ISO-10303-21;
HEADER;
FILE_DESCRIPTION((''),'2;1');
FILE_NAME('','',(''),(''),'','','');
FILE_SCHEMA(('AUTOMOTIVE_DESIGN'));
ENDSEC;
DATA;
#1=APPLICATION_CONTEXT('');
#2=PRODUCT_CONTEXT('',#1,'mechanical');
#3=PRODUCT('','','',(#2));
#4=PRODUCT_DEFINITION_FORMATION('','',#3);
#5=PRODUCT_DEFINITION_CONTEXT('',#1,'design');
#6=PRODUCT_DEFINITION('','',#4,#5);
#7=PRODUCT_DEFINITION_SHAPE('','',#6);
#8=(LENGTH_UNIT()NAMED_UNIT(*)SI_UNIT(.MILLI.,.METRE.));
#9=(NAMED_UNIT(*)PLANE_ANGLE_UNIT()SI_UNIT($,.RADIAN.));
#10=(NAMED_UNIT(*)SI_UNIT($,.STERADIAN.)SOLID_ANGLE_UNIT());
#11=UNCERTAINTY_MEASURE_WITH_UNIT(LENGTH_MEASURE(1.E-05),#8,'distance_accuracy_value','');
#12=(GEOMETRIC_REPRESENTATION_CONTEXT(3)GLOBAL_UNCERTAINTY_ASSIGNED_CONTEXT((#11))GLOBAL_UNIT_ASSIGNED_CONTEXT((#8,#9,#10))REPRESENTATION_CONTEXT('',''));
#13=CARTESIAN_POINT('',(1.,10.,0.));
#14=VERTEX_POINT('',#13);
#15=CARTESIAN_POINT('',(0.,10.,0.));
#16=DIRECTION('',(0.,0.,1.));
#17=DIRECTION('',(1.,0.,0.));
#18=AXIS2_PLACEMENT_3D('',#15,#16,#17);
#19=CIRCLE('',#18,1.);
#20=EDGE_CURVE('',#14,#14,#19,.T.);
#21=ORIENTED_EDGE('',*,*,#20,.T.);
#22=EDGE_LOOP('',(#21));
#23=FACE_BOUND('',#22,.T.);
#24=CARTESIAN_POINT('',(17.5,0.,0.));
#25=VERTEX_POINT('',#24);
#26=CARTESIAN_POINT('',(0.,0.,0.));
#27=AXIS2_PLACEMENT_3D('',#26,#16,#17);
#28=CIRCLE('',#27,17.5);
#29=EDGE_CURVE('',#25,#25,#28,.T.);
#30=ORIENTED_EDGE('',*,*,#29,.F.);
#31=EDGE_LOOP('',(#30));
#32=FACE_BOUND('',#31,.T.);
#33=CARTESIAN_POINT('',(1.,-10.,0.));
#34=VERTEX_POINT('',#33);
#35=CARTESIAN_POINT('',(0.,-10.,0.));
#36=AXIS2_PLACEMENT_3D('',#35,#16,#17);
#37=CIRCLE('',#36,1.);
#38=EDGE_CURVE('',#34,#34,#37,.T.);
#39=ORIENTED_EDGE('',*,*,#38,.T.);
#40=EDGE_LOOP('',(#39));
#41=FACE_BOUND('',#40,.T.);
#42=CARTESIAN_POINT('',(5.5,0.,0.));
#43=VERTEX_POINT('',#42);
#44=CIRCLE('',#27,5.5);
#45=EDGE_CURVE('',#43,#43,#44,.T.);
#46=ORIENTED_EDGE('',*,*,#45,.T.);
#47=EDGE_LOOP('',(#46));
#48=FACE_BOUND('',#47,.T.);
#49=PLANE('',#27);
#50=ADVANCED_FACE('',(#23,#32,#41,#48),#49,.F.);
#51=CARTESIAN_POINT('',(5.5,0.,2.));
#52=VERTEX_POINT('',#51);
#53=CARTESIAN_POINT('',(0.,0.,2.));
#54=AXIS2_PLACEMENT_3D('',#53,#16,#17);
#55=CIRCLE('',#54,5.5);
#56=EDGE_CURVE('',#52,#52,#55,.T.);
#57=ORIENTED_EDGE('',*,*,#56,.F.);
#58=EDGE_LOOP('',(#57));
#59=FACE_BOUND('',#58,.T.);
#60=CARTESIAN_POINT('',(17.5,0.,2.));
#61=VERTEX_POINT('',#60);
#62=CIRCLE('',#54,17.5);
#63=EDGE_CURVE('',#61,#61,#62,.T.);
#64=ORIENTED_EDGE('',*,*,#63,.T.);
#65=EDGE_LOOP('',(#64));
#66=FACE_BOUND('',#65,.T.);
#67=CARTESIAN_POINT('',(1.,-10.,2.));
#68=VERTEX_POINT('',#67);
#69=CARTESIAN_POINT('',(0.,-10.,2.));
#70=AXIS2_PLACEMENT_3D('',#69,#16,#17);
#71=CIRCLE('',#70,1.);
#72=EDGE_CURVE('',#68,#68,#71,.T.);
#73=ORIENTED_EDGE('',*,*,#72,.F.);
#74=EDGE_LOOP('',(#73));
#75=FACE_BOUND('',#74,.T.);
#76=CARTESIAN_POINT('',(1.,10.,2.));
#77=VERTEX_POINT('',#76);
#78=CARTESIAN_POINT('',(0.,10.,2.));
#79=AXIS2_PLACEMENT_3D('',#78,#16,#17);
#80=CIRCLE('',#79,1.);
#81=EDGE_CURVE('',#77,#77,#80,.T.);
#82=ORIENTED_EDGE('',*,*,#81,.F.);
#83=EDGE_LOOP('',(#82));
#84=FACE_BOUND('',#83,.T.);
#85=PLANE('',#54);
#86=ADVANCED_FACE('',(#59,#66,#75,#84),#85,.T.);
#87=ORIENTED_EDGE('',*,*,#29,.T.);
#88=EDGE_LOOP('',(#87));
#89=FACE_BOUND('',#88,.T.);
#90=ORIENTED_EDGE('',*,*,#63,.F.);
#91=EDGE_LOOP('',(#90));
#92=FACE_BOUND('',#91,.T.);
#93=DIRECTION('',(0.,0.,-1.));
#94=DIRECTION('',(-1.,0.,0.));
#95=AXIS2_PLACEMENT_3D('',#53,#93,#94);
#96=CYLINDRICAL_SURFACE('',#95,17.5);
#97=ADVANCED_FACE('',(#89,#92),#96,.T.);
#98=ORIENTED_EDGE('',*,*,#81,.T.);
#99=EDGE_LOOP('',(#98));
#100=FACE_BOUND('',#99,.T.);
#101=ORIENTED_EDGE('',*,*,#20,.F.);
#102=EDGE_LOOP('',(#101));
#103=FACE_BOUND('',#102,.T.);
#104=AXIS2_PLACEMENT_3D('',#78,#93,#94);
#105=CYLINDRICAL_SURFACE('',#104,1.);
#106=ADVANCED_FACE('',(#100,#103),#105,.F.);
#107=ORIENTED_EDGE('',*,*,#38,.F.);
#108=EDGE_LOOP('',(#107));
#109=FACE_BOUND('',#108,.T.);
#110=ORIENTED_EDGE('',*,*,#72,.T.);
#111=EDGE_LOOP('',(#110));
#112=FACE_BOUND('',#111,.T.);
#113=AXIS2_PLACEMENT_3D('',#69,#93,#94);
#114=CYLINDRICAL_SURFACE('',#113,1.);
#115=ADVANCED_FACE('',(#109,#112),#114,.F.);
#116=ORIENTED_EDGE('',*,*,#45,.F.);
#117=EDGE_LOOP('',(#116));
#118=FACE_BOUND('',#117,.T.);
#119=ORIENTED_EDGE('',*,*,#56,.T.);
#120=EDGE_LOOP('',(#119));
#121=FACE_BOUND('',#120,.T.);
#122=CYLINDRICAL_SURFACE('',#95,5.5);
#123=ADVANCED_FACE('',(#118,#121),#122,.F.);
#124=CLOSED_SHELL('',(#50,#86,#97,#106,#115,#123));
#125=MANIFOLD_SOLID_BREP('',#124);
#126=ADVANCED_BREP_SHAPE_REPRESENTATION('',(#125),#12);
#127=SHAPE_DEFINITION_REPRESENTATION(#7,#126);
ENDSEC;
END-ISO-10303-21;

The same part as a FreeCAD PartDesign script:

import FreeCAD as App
import Part
import Sketcher

V = App.Vector
Q = App.Units.Quantity

doc = App.newDocument("Part")
body = doc.addObject("PartDesign::Body", "Body")

# Sketch on XY plane
sketch1 = body.newObject("Sketcher::SketchObject", "Sketch")
sketch1.AttachmentSupport = (doc.getObject("XY_Plane"), [""])
sketch1.MapMode = "FlatFace"
sketch1.addGeometry(Part.Circle(V(0, 0, 0), V(0, 0, 1), 17.5), False)
sketch1.addGeometry(Part.Circle(V(0, -10, 0), V(0, 0, 1), 1), False)
sketch1.addGeometry(Part.Circle(V(0, 0, 0), V(0, 0, 1), 5.5), False)
sketch1.addGeometry(Part.Circle(V(0, 10, 0), V(0, 0, 1), 1), False)
sketch1.addConstraint(Sketcher.Constraint("Coincident", 0, 3, -1, 1))
sketch1.addConstraint(Sketcher.Constraint("Coincident", 2, 3, -1, 1))
sketch1.addConstraint(Sketcher.Constraint("Equal", 1, 3))
sketch1.addConstraint(Sketcher.Constraint("Symmetric", 1, 3, 3, 3, -1, 1))
sketch1.addConstraint(Sketcher.Constraint("PointOnObject", 1, 3, -2))
sketch1.addConstraint(Sketcher.Constraint("Diameter", 0, Q("35 mm")))
sketch1.addConstraint(Sketcher.Constraint("Diameter", 1, Q("2 mm")))
sketch1.addConstraint(Sketcher.Constraint("Diameter", 2, Q("11 mm")))
sketch1.addConstraint(Sketcher.Constraint("DistanceY", 1, 3, -1, 1, Q("10 mm")))
pad1 = body.newObject("PartDesign::Pad", "Pad")
pad1.Profile = sketch1
pad1.Length = 2

doc.recompute()
